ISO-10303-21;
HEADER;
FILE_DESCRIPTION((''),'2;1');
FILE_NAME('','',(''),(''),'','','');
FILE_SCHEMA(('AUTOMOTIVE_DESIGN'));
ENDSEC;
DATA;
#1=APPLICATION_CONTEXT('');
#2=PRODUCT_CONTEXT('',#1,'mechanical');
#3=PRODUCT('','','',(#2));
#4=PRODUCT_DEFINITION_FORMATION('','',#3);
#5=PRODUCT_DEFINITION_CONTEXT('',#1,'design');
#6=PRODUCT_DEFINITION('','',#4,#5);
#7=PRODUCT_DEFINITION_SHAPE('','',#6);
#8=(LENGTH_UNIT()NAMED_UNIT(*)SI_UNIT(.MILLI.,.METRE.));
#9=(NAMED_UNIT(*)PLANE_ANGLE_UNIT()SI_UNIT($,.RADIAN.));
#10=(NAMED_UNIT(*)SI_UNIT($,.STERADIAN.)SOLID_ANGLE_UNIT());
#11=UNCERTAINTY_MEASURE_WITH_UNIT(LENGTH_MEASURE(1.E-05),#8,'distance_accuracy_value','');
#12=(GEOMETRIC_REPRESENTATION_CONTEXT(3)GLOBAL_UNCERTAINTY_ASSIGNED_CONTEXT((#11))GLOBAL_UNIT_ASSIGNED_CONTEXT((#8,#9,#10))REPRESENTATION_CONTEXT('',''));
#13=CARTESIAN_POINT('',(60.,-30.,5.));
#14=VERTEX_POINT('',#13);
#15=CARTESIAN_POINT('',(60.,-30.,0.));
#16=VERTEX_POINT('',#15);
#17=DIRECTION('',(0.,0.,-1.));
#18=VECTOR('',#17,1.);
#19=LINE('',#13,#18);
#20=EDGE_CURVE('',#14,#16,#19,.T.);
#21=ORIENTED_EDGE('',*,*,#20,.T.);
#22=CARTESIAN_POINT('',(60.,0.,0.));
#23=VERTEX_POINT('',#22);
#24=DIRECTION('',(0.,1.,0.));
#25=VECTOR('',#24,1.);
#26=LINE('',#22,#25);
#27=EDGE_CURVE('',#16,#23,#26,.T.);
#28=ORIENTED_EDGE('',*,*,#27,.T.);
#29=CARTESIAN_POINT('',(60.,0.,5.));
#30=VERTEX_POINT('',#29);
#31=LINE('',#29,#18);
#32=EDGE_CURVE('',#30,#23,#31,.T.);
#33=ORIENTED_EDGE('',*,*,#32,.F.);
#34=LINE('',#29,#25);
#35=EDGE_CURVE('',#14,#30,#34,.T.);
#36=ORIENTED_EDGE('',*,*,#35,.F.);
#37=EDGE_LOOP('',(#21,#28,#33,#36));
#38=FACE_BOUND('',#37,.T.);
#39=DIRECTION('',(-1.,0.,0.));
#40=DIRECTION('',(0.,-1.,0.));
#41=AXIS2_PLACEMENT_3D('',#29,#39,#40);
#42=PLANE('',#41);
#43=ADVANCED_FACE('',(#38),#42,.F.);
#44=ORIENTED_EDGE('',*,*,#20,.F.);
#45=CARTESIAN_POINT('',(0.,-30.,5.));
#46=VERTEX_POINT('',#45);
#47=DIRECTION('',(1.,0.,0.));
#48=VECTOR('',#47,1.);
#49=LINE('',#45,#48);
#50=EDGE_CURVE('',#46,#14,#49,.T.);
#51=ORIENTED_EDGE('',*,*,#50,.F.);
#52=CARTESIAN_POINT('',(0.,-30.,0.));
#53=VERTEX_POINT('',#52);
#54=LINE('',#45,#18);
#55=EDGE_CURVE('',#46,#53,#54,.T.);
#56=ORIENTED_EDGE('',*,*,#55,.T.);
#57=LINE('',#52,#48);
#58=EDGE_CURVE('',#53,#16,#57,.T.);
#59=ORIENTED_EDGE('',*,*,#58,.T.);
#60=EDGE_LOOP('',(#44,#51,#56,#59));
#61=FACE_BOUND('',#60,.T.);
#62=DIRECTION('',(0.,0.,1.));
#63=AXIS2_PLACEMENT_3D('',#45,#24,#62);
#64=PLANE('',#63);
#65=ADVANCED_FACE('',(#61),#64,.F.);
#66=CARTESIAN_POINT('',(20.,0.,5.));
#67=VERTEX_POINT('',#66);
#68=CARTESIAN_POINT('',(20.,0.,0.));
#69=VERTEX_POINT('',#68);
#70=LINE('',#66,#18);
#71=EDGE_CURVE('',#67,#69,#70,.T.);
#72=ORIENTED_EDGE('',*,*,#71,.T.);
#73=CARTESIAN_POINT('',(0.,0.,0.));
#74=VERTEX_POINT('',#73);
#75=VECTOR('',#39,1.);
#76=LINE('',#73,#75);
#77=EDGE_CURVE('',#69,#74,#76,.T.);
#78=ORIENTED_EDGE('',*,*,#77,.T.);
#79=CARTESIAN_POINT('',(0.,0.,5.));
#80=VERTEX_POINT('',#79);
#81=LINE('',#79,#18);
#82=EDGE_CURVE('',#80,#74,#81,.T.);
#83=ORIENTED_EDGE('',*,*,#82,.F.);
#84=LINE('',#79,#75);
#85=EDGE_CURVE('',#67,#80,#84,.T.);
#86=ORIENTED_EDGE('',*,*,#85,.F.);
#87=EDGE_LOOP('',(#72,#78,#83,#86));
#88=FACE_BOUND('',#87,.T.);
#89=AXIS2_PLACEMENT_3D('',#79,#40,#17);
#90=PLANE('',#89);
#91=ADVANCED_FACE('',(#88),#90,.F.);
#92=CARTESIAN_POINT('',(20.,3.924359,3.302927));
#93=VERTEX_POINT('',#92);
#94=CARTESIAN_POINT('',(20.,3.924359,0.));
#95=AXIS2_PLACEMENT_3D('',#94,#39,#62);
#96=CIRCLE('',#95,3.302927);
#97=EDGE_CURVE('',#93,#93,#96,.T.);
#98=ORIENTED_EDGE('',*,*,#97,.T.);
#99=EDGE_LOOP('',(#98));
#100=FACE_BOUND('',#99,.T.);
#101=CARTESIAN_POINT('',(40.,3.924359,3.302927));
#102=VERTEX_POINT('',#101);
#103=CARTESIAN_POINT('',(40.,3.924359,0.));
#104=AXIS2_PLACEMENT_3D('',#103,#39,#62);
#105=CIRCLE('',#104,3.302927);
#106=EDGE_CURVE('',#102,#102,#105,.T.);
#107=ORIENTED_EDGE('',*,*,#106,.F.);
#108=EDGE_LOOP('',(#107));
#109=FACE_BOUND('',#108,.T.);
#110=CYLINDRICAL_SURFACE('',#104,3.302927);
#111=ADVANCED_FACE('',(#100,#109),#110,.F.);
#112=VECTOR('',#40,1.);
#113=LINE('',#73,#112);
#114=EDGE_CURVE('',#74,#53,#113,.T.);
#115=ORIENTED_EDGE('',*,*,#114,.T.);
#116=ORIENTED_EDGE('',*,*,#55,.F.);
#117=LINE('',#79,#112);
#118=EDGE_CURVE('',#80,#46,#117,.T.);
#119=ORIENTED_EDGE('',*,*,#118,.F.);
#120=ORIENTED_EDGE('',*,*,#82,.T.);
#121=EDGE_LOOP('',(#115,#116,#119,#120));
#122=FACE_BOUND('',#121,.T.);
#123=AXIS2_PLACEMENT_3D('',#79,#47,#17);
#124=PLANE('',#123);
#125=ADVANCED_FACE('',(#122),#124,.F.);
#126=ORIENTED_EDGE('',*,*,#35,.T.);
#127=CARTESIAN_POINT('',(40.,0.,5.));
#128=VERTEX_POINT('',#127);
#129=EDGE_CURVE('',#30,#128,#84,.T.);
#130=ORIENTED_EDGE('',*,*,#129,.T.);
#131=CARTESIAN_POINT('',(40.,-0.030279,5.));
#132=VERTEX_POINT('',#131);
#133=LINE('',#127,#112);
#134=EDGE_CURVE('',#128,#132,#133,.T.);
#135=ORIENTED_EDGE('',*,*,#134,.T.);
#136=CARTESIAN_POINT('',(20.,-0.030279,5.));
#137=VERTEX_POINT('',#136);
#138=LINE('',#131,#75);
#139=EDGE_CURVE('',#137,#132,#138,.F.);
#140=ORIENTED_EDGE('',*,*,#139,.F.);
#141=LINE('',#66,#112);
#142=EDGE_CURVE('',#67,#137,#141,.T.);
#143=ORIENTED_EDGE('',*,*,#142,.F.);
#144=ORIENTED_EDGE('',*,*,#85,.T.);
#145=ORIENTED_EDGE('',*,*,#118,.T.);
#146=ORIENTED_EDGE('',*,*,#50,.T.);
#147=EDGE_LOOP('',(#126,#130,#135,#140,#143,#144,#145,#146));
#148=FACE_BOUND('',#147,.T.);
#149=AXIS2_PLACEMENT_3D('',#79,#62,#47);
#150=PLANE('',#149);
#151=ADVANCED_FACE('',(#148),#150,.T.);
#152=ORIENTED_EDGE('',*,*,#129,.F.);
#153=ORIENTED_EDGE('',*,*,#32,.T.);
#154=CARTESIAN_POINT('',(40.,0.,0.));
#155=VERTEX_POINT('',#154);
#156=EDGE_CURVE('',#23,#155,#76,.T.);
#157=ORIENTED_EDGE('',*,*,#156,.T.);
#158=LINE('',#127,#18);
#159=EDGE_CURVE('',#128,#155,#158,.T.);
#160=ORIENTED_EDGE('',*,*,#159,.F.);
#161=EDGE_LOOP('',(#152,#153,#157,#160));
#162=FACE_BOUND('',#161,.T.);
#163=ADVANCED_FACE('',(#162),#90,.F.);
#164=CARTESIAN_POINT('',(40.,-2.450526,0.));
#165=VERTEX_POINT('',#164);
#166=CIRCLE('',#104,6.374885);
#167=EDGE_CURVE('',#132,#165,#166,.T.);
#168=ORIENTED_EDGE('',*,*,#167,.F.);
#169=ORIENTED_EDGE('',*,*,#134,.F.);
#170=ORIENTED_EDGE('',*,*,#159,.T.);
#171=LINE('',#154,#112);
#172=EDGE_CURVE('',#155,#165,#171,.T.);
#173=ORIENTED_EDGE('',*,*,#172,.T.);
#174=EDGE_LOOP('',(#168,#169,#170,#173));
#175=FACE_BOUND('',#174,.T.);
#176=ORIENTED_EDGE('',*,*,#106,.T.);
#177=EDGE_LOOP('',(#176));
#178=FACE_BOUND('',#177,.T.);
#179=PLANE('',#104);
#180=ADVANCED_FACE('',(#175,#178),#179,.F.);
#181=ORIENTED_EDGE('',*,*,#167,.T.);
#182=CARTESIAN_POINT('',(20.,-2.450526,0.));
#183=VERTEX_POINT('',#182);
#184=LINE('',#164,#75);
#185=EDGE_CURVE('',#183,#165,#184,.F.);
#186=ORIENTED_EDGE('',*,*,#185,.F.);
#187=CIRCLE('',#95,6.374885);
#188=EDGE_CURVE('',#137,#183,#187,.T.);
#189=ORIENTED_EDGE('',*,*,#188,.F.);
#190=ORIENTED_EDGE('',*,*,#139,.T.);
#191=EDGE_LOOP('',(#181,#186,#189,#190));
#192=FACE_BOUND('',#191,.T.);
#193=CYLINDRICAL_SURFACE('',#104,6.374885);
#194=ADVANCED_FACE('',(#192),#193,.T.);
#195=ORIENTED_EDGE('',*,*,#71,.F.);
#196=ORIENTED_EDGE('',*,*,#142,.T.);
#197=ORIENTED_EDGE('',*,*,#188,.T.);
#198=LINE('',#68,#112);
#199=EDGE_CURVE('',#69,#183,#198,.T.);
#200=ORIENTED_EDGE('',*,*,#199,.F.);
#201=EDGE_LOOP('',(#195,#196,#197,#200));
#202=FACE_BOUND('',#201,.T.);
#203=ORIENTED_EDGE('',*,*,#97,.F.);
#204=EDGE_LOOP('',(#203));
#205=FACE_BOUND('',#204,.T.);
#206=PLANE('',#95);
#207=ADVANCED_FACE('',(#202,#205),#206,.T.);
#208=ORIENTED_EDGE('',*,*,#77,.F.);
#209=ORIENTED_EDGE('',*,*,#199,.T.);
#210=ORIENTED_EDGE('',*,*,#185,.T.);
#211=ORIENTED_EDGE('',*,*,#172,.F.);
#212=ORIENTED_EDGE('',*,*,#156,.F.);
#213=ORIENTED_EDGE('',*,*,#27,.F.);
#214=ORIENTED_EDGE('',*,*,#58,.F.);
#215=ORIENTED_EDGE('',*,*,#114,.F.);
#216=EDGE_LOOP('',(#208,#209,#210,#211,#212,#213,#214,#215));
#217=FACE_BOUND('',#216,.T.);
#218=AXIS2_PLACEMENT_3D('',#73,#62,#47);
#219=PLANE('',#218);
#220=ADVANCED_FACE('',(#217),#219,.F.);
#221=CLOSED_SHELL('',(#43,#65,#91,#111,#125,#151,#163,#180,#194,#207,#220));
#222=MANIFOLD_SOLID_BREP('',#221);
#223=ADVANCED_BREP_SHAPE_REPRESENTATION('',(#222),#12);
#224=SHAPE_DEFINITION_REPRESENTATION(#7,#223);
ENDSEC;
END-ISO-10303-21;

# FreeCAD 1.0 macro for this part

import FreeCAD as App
import Part
import Sketcher
from FreeCAD import Vector
Q = App.Units.Quantity


def add_polygon(sketch, points):
    """Adds a closed chain of lines whose ends are joined by coincident constraints."""
    first, n = sketch.GeometryCount, len(points)
    for a, b in zip(points, points[1:] + points[:1]):
        sketch.addGeometry(Part.LineSegment(App.Vector(*a, 0), App.Vector(*b, 0)), False)
    for i in range(n):
        sketch.addConstraint(Sketcher.Constraint("Coincident", first + i, 2, first + (i + 1) % n, 1))

doc = App.newDocument("Part")
body = doc.addObject("PartDesign::Body", "Body")

# Sketch on XY plane
sketch1 = body.newObject("Sketcher::SketchObject", "Sketch")
sketch1.AttachmentSupport = (doc.getObject("XY_Plane"), [""])
sketch1.MapMode = "FlatFace"
add_polygon(sketch1, [(0, 0), (0, -30), (60, -30), (60, 0)])  # lines 0-3
sketch1.addConstraint([
    Sketcher.Constraint("Vertical", 0),
    Sketcher.Constraint("Horizontal", 1),
    Sketcher.Constraint("Vertical", 2),
    Sketcher.Constraint("Horizontal", 3),
    Sketcher.Constraint("Coincident", 3, 2, -1, 1),
    Sketcher.Constraint("DistanceX", 1, 1, 1, 2, Q("60 mm")),
    Sketcher.Constraint("DistanceY", 0, 2, 0, 1, Q("30 mm")),
])
pad1 = body.newObject("PartDesign::Pad", "Pad")
pad1.Profile = sketch1
pad1.Length = 5

# Sketch on YZ plane
sketch2 = body.newObject("Sketcher::SketchObject", "Sketch001")
sketch2.AttachmentSupport = (doc.getObject("YZ_Plane"), [""])
sketch2.MapMode = "FlatFace"
sketch2.AttachmentOffset = App.Placement(Vector(0, 0, 20), App.Rotation())
sketch2.addGeometry([
    Part.Circle(Vector(3.924359, 0, 0), Vector(0, 0, 1), 6.374885),
    Part.Circle(Vector(3.924359, 0, 0), Vector(0, 0, 1), 3.302927),
], False)
sketch2.addConstraint([
    Sketcher.Constraint("Coincident", 1, 3, 0, 3),
    Sketcher.Constraint("PointOnObject", 0, 3, -1),
    Sketcher.Constraint("Diameter", 0, Q("12.749771 mm")),
    Sketcher.Constraint("Diameter", 1, Q("6.605853 mm")),
    Sketcher.Constraint("DistanceX", -1, 1, 0, 3, Q("3.924359 mm")),
])
pad2 = body.newObject("PartDesign::Pad", "Pad001")
pad2.Profile = sketch2
pad2.Length = 20

doc.recompute()
